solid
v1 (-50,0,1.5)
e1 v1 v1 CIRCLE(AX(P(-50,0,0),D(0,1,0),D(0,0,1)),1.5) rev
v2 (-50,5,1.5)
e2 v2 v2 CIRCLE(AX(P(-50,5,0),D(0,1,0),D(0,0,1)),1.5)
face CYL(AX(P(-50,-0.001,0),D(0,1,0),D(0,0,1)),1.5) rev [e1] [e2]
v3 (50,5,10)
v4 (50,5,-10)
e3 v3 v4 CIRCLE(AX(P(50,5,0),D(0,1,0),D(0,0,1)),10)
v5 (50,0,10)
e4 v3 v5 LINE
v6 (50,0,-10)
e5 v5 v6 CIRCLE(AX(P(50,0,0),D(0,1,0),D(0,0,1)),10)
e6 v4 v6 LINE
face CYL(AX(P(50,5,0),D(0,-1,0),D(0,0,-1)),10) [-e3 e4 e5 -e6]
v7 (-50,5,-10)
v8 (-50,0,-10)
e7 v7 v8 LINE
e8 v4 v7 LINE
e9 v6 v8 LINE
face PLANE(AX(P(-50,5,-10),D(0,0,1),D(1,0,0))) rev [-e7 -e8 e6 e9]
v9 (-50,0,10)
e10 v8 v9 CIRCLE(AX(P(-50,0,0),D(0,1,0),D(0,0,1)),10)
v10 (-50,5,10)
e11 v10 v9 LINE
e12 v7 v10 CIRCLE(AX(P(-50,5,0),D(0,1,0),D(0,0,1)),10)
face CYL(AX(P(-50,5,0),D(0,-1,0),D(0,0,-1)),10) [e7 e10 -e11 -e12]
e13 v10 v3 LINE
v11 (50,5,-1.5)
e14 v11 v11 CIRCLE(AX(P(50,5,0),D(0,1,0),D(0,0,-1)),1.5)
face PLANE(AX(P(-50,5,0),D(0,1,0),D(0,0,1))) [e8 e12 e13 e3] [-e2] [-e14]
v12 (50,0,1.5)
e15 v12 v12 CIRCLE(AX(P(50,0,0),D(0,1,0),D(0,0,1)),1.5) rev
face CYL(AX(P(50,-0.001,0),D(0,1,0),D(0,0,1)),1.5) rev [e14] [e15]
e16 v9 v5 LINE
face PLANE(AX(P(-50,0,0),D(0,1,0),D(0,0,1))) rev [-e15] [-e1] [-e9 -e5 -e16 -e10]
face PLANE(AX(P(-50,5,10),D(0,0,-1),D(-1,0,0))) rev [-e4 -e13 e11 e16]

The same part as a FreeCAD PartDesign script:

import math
import FreeCAD as App
import Part
import Sketcher
from FreeCAD import Vector
Q = App.Units.Quantity

doc = App.newDocument("Part")
params = doc.addObject("Spreadsheet::Sheet", "Params")
for row, (alias, value) in enumerate([
    ("sketch1_radius", "10 mm"),
    ("sketch1_width", "100 mm"),
    ("pad1_length", "5 mm"),
    ("sketch2_diameter", "3 mm"),
    ("sketch3_diameter", "3 mm"),
], start=1):
    params.set(f"A{row}", alias)
    params.set(f"B{row}", "=" + value)
    params.setAlias(f"B{row}", alias)

body = doc.addObject("PartDesign::Body", "Body")

sketch1 = body.newObject("Sketcher::SketchObject", "Sketch")
sketch1.AttachmentSupport = (doc.getObject("XZ_Plane"), [""])
sketch1.MapMode = "FlatFace"
sketch1.addGeometry([
    Part.LineSegment(Vector(50, -10, 0), Vector(-50, -10, 0)),
    Part.ArcOfCircle(Part.Circle(Vector(-50, 0, 0), Vector(0, 0, 1), 10), math.radians(90), math.radians(270)),
    Part.LineSegment(Vector(-50, 10, 0), Vector(50, 10, 0)),
    Part.ArcOfCircle(Part.Circle(Vector(50, 0, 0), Vector(0, 0, 1), 10), math.radians(-90), math.radians(90)),
], False)
sketch1.addConstraint([
    Sketcher.Constraint("Tangent", 0, 2, 1, 2),
    Sketcher.Constraint("Tangent", 1, 1, 2, 1),
    Sketcher.Constraint("Tangent", 2, 2, 3, 2),
    Sketcher.Constraint("Tangent", 3, 1, 0, 1),
    Sketcher.Constraint("Horizontal", 0),
    Sketcher.Constraint("Horizontal", 2),
    Sketcher.Constraint("Symmetric", 1, 3, 3, 3, -1, 1),
    Sketcher.Constraint("Radius", 1, Q("10 mm")),
    Sketcher.Constraint("DistanceX", 0, 2, 0, 1, Q("100 mm")),
])
sketch1.setExpression("Constraints[7]", "Params.sketch1_radius")
sketch1.setExpression("Constraints[8]", "Params.sketch1_width")
pad1 = body.newObject("PartDesign::Pad", "Pad")
pad1.Profile = sketch1
pad1.setExpression("Length", "Params.pad1_length")
pad1.Reversed = True

sketch2 = body.newObject("Sketcher::SketchObject", "Sketch001")
sketch2.AttachmentSupport = (doc.getObject("XZ_Plane"), [""])
sketch2.MapMode = "FlatFace"
sketch2.AttachmentOffset = App.Placement(Vector(0, 0, -5), App.Rotation())
sketch2.addGeometry(Part.Circle(Vector(-50, 0, 0), Vector(0, 0, 1), 1.5), False)
sketch2.addConstraint([
    Sketcher.Constraint("PointOnObject", 0, 3, -1),
    Sketcher.Constraint("Diameter", 0, Q("3 mm")),
    Sketcher.Constraint("DistanceX", 0, 3, -1, 1, Q("50 mm")),
])
sketch2.setExpression("Constraints[1]", "Params.sketch2_diameter")
pocket1 = body.newObject("PartDesign::Pocket", "Pocket")
pocket1.Profile = sketch2
pocket1.Type = "UpToFirst"
pocket1.Reversed = True

sketch3 = body.newObject("Sketcher::SketchObject", "Sketch002")
sketch3.AttachmentSupport = (doc.getObject("XZ_Plane"), [""])
sketch3.MapMode = "FlatFace"
sketch3.AttachmentOffset = App.Placement(Vector(0, 0, -5), App.Rotation())
sketch3.addGeometry(Part.Circle(Vector(50, 0, 0), Vector(0, 0, 1), 1.5), False)
sketch3.addConstraint([
    Sketcher.Constraint("PointOnObject", 0, 3, -1),
    Sketcher.Constraint("Diameter", 0, Q("3 mm")),
    Sketcher.Constraint("DistanceX", -1, 1, 0, 3, Q("50 mm")),
])
sketch3.setExpression("Constraints[1]", "Params.sketch3_diameter")
pocket2 = body.newObject("PartDesign::Pocket", "Pocket001")
pocket2.Profile = sketch3
pocket2.Type = "UpToFirst"
pocket2.Reversed = True

doc.recompute()
